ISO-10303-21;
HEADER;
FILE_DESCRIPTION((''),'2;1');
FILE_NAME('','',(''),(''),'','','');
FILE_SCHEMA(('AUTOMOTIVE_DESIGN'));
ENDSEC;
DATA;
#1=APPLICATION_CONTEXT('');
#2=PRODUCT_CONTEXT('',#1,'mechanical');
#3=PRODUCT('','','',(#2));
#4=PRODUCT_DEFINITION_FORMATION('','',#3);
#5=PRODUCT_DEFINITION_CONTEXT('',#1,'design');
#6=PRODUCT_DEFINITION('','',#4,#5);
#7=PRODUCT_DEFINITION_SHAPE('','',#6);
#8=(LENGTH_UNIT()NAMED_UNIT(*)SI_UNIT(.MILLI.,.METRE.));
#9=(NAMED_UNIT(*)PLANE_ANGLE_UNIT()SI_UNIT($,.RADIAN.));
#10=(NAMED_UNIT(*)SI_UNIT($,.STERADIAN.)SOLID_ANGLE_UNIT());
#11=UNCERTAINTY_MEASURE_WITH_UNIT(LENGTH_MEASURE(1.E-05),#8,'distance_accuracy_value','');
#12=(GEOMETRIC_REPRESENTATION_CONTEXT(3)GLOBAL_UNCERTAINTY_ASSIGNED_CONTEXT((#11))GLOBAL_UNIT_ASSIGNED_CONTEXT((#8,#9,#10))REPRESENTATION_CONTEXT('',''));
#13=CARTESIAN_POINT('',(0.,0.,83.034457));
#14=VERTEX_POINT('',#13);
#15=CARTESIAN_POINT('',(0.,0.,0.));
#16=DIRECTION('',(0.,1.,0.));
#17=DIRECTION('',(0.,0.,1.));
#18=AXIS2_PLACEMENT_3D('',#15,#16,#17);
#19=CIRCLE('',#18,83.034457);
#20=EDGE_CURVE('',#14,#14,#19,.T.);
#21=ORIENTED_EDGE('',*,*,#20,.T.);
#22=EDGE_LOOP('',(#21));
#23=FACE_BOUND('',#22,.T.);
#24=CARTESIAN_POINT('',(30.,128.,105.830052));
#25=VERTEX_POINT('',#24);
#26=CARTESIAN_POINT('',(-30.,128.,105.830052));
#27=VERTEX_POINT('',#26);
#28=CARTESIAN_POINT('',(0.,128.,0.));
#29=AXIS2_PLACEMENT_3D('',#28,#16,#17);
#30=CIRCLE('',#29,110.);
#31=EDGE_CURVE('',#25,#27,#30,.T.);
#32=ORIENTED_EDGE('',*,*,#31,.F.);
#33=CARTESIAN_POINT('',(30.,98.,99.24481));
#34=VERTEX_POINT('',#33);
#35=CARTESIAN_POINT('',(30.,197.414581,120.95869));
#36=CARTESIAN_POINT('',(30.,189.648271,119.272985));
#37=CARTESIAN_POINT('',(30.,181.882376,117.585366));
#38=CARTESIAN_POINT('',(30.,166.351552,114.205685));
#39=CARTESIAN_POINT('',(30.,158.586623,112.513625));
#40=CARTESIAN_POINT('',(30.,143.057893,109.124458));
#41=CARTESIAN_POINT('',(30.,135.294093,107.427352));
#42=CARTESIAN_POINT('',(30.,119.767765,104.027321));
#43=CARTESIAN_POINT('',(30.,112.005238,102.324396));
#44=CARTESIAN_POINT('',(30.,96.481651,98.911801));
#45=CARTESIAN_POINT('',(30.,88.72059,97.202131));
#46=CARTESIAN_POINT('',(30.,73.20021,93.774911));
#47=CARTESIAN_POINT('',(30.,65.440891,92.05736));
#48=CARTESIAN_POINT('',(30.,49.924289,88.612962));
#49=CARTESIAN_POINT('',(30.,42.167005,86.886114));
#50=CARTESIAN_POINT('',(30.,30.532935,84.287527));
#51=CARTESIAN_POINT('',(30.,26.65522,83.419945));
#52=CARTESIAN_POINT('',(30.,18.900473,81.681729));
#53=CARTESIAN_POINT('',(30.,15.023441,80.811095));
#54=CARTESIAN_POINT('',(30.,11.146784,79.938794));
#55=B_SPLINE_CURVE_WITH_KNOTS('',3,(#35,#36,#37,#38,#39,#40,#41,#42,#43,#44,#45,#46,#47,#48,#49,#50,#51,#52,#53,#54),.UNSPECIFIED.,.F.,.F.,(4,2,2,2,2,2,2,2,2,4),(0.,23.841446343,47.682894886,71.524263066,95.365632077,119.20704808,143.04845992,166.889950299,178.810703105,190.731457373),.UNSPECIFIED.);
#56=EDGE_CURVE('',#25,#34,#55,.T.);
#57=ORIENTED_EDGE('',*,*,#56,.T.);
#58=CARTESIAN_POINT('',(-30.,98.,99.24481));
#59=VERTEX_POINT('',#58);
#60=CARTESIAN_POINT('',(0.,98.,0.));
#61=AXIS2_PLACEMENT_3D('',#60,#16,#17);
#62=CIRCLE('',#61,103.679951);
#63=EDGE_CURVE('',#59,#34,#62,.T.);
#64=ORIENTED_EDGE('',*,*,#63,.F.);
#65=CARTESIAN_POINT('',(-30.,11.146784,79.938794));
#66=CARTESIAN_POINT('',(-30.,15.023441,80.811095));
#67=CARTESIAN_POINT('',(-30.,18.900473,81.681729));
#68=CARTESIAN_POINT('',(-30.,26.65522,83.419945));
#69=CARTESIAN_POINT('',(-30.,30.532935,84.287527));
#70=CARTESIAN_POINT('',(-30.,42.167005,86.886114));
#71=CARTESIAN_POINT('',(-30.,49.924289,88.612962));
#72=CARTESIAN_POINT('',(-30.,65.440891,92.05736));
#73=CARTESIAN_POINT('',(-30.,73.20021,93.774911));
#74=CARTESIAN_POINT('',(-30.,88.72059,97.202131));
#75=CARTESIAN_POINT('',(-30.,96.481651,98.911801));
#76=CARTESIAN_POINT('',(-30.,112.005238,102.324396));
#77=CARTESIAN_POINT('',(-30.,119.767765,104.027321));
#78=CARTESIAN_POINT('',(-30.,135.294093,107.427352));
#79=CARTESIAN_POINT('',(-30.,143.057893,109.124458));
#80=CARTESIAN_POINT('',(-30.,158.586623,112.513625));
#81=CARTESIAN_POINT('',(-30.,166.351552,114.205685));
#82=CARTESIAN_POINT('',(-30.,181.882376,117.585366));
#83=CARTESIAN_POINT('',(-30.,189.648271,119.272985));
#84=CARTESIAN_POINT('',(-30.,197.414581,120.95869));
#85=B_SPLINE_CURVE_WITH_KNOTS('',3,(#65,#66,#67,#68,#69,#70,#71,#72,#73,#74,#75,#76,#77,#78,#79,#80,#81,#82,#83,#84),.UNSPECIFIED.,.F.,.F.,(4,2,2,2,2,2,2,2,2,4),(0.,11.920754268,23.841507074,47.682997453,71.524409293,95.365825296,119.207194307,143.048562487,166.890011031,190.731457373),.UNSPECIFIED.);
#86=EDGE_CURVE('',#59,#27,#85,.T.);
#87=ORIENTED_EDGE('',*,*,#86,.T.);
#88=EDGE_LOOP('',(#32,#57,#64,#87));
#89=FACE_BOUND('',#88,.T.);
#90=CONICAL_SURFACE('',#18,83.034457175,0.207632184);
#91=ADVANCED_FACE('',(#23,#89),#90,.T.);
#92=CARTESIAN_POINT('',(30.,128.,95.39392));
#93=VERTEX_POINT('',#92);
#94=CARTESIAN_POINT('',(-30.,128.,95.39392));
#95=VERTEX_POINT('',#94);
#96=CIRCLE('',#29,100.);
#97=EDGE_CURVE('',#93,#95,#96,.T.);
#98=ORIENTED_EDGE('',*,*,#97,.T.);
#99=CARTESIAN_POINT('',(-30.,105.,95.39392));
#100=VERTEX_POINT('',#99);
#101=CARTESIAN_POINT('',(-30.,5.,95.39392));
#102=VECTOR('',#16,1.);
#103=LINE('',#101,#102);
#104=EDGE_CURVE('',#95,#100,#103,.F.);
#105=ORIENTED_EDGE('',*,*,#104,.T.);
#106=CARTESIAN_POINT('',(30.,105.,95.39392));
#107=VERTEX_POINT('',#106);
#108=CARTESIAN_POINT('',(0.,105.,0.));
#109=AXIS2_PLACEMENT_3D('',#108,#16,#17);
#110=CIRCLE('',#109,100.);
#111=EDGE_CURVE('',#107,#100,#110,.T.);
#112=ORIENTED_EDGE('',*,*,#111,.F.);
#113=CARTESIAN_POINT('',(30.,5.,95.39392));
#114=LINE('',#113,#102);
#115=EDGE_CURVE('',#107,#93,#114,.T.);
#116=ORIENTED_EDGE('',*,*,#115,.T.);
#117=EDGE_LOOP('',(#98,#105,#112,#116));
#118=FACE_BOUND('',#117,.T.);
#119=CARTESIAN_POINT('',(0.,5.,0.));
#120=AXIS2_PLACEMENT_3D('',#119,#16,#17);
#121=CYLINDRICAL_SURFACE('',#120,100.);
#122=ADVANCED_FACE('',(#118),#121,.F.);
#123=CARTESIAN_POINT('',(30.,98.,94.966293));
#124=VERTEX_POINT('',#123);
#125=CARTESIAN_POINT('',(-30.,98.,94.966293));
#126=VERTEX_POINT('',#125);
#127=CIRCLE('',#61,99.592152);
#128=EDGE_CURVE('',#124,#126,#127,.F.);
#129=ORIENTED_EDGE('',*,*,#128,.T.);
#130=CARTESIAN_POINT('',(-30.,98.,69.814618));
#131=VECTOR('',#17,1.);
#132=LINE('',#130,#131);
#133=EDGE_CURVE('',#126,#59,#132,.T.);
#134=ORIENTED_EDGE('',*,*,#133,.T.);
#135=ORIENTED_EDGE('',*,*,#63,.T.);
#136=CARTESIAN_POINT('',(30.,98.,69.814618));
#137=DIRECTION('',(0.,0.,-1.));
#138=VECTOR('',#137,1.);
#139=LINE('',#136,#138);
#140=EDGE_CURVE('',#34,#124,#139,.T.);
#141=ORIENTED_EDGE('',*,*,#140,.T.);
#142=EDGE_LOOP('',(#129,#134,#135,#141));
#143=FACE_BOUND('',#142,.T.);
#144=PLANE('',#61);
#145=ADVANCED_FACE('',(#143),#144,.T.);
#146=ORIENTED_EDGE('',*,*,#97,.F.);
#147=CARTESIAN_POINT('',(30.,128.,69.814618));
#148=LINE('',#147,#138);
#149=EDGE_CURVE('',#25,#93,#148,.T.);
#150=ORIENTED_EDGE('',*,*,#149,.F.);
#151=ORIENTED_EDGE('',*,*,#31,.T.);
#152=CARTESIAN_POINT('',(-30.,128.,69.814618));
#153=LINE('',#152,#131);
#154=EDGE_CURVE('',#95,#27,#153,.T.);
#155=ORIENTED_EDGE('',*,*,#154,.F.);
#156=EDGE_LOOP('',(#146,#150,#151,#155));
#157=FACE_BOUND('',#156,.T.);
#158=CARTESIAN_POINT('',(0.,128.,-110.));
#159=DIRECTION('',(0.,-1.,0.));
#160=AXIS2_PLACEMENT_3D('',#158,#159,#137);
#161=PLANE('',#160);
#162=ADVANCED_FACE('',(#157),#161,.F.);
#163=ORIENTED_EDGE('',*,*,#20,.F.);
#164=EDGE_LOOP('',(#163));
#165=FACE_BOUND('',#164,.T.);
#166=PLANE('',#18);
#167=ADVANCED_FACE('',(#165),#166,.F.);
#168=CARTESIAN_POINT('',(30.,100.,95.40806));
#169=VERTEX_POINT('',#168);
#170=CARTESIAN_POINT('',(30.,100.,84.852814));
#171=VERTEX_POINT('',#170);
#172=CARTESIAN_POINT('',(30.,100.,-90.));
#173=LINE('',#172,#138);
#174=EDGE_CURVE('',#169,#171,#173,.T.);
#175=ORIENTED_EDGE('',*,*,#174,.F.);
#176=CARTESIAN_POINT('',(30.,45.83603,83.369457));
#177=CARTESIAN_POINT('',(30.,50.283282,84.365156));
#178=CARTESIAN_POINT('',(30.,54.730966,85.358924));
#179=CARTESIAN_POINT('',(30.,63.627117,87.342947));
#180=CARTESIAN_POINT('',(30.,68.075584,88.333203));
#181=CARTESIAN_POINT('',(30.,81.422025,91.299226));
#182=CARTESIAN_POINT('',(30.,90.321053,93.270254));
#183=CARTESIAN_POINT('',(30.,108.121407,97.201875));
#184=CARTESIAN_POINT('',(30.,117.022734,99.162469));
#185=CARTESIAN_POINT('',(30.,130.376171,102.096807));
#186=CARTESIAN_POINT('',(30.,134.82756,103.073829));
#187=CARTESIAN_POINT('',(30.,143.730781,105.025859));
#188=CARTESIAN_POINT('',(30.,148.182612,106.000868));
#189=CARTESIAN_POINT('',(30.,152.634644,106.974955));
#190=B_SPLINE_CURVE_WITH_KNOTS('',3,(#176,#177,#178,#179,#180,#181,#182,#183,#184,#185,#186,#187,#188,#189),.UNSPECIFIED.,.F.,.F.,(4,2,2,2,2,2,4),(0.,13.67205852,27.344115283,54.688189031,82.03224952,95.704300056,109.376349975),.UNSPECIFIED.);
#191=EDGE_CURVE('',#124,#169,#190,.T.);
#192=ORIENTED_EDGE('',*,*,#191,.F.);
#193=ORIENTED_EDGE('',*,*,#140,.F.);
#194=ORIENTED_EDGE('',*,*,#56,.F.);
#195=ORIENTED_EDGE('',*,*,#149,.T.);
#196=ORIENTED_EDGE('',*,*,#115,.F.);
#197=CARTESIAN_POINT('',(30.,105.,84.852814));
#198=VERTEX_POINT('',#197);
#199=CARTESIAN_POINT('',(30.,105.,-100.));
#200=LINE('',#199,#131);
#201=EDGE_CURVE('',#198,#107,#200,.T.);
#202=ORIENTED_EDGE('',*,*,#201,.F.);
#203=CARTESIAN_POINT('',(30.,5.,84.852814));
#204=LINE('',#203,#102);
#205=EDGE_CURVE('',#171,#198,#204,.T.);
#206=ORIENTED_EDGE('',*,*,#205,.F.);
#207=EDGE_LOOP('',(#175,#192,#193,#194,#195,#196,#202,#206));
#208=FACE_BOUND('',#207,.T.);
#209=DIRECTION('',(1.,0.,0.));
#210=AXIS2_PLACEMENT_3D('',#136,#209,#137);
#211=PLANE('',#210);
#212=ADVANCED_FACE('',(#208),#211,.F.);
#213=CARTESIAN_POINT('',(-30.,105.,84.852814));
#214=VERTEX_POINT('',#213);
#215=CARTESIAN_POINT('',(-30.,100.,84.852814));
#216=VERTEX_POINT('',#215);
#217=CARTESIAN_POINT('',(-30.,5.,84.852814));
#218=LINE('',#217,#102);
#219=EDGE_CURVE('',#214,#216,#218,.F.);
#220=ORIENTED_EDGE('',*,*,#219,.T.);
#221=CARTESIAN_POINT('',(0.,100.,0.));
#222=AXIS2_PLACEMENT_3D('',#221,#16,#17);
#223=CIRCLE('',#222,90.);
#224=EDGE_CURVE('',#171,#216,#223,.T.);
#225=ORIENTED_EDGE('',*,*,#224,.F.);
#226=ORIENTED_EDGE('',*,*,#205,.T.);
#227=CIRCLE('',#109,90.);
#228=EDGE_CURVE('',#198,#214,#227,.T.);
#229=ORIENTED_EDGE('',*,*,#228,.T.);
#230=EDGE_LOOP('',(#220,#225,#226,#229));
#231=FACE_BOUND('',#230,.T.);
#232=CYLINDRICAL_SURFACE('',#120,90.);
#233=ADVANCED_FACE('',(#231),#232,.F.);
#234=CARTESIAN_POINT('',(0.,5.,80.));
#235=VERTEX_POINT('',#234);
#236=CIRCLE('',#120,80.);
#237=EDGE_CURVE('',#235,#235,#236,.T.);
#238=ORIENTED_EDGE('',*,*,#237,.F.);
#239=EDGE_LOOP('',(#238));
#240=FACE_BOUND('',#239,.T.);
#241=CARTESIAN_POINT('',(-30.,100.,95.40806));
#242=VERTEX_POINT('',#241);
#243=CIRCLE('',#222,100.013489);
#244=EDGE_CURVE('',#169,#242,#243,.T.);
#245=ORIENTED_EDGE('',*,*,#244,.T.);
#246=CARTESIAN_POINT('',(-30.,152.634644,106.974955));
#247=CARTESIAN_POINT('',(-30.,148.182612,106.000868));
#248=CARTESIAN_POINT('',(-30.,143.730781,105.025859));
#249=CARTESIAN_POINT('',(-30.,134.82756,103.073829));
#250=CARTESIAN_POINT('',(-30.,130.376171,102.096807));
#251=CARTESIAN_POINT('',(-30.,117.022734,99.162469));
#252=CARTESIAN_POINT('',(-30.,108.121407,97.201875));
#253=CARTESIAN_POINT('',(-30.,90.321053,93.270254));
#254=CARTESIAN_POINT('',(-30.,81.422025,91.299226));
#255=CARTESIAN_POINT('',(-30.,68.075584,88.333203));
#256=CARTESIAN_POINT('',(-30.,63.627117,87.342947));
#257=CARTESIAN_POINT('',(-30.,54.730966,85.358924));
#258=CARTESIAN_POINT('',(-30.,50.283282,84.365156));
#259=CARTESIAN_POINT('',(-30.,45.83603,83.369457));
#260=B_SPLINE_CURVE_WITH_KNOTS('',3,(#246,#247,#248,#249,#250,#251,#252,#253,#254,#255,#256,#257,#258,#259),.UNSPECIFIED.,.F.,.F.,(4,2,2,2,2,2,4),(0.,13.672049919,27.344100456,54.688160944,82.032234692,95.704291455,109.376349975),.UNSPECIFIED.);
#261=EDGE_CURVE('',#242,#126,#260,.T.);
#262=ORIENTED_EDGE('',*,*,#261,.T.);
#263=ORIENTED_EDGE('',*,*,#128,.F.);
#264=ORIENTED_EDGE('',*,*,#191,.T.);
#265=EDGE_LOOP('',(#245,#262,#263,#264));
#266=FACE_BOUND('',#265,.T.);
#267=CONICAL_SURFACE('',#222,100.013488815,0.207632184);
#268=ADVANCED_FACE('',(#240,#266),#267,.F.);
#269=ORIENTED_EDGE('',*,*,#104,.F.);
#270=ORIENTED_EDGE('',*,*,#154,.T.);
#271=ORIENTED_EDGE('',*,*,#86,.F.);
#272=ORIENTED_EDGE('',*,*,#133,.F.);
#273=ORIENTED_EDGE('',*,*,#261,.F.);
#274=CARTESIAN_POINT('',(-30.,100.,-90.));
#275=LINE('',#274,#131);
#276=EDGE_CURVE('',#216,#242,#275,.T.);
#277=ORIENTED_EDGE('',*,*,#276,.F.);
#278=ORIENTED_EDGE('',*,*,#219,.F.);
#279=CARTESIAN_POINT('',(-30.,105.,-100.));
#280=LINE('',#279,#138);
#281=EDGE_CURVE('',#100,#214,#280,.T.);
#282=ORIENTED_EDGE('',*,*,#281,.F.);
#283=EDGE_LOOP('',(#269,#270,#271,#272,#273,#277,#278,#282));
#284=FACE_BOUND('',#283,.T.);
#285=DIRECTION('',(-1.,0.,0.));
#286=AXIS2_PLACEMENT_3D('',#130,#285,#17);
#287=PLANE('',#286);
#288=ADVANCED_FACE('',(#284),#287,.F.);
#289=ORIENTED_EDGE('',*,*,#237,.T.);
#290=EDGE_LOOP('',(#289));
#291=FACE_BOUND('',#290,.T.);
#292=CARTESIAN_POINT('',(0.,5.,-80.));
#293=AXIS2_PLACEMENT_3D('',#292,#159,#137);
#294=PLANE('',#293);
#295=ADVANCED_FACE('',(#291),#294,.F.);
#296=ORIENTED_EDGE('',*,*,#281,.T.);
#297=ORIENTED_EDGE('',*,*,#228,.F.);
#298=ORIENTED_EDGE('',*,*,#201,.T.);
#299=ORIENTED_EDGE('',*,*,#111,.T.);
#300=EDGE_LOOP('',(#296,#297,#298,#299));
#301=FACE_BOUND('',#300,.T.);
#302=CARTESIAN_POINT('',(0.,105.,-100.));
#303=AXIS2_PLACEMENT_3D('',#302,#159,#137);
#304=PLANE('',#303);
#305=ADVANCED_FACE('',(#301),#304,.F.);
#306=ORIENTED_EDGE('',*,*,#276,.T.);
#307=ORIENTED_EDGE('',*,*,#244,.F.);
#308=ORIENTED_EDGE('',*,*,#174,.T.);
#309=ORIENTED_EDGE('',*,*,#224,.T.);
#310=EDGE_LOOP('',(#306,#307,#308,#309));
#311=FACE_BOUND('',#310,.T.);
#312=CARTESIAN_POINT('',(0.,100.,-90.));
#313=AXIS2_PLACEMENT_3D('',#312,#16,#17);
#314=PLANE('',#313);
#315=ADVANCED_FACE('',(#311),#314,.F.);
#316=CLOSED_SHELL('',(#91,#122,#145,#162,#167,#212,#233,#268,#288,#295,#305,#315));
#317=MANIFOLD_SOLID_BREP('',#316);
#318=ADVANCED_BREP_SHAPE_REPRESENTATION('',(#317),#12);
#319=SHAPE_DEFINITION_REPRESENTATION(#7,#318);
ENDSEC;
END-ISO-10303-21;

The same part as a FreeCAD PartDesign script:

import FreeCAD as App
import Part
import Sketcher
from FreeCAD import Vector
Q = App.Units.Quantity


def add_polygon(sketch, points):
    """Adds a closed chain of lines whose ends are joined by coincident constraints."""
    first, n = sketch.GeometryCount, len(points)
    for a, b in zip(points, points[1:] + points[:1]):
        sketch.addGeometry(Part.LineSegment(App.Vector(*a, 0), App.Vector(*b, 0)), False)
    for i in range(n):
        sketch.addConstraint(Sketcher.Constraint("Coincident", first + i, 2, first + (i + 1) % n, 1))

doc = App.newDocument("Part")
params = doc.addObject("Spreadsheet::Sheet", "Params")
for row, (alias, value) in enumerate([
    ("sketch1_width", "23 mm"),
    ("sketch1_width2", "5 mm"),
    ("sketch1_height", "10 mm"),
    ("sketch1_height2", "80 mm"),
    ("revolution_angle", "360 deg"),
    ("sketch2_width", "60 mm"),
    ("pocket1_length", "30 mm"),
], start=1):
    params.set(f"A{row}", alias)
    params.set(f"B{row}", "=" + value)
    params.setAlias(f"B{row}", alias)

body = doc.addObject("PartDesign::Body", "Body")

sketch1 = body.newObject("Sketcher::SketchObject", "Sketch")
sketch1.AttachmentSupport = (doc.getObject("YZ_Plane"), [""])
sketch1.MapMode = "FlatFace"
add_polygon(sketch1, [(0, 0), (0, -83), (128, -110), (128, -100), (105, -100), (105, -90), (100, -90), (100, -100), (5, -80), (5, 0)])
sketch1.addConstraint(Sketcher.Constraint("Vertical", 0))
sketch1.addConstraint(Sketcher.Constraint("Vertical", 2))
sketch1.addConstraint(Sketcher.Constraint("Horizontal", 3))
sketch1.addConstraint(Sketcher.Constraint("Vertical", 4))
sketch1.addConstraint(Sketcher.Constraint("Horizontal", 5))
sketch1.addConstraint(Sketcher.Constraint("Vertical", 6))
sketch1.addConstraint(Sketcher.Constraint("Vertical", 8))
sketch1.addConstraint(Sketcher.Constraint("Horizontal", 9))
sketch1.addConstraint(Sketcher.Constraint("Coincident", 9, 2, -1, 1))
sketch1.addConstraint(Sketcher.Constraint("Parallel", 1, 7))
sketch1.addConstraint(Sketcher.Constraint("Equal", 5, 9))
sketch1.addConstraint(Sketcher.Constraint("Equal", 2, 4))
sketch1.addConstraint(Sketcher.Constraint("DistanceX", 3, 2, 3, 1, Q("23 mm")))
sketch1.addConstraint(Sketcher.Constraint("DistanceX", 5, 2, 5, 1, Q("5 mm")))
sketch1.addConstraint(Sketcher.Constraint("DistanceY", 2, 1, 2, 2, Q("10 mm")))
sketch1.addConstraint(Sketcher.Constraint("DistanceY", 8, 1, 8, 2, Q("80 mm")))
sketch1.addConstraint(Sketcher.Constraint("DistanceX", -1, 1, 1, 2, Q("128 mm")))
sketch1.addConstraint(Sketcher.Constraint("DistanceY", 1, 2, -1, 1, Q("110 mm")))
sketch1.addConstraint(Sketcher.Constraint("DistanceY", 6, 2, 6, 1, Q("10.013489 mm")))
sketch1.setExpression("Constraints[22]", "Params.sketch1_width")
sketch1.setExpression("Constraints[23]", "Params.sketch1_width2")
sketch1.setExpression("Constraints[24]", "Params.sketch1_height")
sketch1.setExpression("Constraints[25]", "Params.sketch1_height2")
revolution = body.newObject("PartDesign::Revolution", "Revolution")
revolution.Profile = sketch1
revolution.ReferenceAxis = (sketch1, ["H_Axis"])
revolution.setExpression("Angle", "Params.revolution_angle")

sketch2 = body.newObject("Sketcher::SketchObject", "Sketch001")
sketch2.AttachmentSupport = (doc.getObject("XZ_Plane"), [""])
sketch2.MapMode = "FlatFace"
sketch2.AttachmentOffset = App.Placement(Vector(0, 0, -128), App.Rotation())
add_polygon(sketch2, [(-30, 70), (-30, 127), (30, 127), (30, 70)])
sketch2.addConstraint(Sketcher.Constraint("Vertical", 0))
sketch2.addConstraint(Sketcher.Constraint("Horizontal", 1))
sketch2.addConstraint(Sketcher.Constraint("Vertical", 2))
sketch2.addConstraint(Sketcher.Constraint("Horizontal", 3))
sketch2.addConstraint(Sketcher.Constraint("DistanceX", 1, 1, 1, 2, Q("60 mm")))
sketch2.addConstraint(Sketcher.Constraint("DistanceX", 0, 2, -1, 1, Q("30 mm")))
sketch2.addConstraint(Sketcher.Constraint("DistanceY", 0, 1, 0, 2, Q("57.613169 mm")))
sketch2.addConstraint(Sketcher.Constraint("DistanceY", -1, 1, 0, 2, Q("127.427786 mm")))
sketch2.setExpression("Constraints[8]", "Params.sketch2_width")
pocket1 = body.newObject("PartDesign::Pocket", "Pocket")
pocket1.Profile = sketch2
pocket1.setExpression("Length", "Params.pocket1_length")
pocket1.Reversed = True

doc.recompute()
